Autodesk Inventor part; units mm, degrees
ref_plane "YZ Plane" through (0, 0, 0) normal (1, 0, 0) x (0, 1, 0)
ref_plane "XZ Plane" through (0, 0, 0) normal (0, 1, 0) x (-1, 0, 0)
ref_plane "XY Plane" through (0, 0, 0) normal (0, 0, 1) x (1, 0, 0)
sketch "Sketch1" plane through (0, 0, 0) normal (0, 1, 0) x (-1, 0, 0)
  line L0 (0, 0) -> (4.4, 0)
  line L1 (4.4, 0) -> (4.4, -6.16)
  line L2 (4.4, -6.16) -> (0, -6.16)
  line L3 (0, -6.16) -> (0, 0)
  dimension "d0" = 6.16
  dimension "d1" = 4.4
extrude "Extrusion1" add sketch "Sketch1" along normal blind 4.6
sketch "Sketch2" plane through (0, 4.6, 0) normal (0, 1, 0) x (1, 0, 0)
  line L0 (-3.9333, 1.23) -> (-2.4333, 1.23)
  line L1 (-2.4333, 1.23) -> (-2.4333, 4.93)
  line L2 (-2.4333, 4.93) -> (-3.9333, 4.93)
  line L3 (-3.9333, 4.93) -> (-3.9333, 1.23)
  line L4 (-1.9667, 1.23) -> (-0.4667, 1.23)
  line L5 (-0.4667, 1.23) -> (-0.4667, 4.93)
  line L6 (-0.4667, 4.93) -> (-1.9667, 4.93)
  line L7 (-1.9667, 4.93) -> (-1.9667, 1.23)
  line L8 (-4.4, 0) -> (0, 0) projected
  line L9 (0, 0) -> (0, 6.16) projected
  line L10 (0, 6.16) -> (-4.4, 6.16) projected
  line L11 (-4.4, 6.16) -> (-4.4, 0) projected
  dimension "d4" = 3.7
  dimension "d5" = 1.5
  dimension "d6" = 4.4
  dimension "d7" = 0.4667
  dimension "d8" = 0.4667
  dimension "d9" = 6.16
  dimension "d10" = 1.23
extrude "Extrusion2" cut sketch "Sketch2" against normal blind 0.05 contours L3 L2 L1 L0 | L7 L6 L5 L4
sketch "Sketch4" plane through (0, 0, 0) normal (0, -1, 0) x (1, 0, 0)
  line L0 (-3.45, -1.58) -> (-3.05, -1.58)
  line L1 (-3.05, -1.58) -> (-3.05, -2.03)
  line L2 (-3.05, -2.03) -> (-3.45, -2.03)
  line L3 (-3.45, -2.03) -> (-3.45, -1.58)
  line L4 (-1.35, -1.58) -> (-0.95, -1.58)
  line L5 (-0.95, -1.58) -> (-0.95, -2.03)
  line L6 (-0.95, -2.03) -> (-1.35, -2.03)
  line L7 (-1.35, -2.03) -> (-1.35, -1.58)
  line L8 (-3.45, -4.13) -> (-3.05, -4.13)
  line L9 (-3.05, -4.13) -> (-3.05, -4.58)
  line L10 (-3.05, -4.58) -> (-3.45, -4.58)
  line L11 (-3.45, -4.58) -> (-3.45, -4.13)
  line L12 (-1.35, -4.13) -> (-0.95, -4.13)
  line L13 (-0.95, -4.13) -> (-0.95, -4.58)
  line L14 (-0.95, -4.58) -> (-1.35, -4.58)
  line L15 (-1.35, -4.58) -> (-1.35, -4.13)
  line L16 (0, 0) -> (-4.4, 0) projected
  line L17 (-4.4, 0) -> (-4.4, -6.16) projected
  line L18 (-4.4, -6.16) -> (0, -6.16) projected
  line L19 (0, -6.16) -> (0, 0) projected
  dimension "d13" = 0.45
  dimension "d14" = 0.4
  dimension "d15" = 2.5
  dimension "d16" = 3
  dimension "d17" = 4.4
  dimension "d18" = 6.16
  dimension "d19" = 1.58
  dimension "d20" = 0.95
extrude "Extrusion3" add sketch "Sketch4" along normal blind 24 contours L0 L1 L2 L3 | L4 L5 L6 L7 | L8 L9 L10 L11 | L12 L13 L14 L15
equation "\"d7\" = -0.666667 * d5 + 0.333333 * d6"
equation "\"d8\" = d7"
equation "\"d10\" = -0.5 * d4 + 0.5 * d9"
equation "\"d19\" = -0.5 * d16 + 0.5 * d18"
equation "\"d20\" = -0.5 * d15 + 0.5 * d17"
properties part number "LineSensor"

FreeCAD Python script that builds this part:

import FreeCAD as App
import Part
import Sketcher

V = App.Vector
Q = App.Units.Quantity

doc = App.newDocument("Part")
params = doc.addObject("Spreadsheet::Sheet", "Params")
for row, (alias, value) in enumerate([
    ("sketch1_width", "4.4 mm"),
    ("sketch1_height", "6.16 mm"),
    ("pad1_length", "4.6 mm"),
    ("sketch2_width", "1.5 mm"),
    ("sketch2_height", "3.7 mm"),
    ("pocket1_length", "0.05 mm"),
    ("sketch3_width", "0.4 mm"),
    ("sketch3_height", "0.45 mm"),
    ("pad2_length", "24 mm"),
], start=1):
    params.set(f"A{row}", alias)
    params.set(f"B{row}", "=" + value)
    params.setAlias(f"B{row}", alias)

body = doc.addObject("PartDesign::Body", "Body")

# Sketch on XZ plane
sketch1 = body.newObject("Sketcher::SketchObject", "Sketch")
sketch1.AttachmentSupport = (doc.getObject("XZ_Plane"), [""])
sketch1.MapMode = "FlatFace"
sketch1.addGeometry(Part.LineSegment(V(-4.4, 0, 0), V(0, 0, 0)), False)
sketch1.addGeometry(Part.LineSegment(V(0, 0, 0), V(0, -6.16, 0)), False)
sketch1.addGeometry(Part.LineSegment(V(0, -6.16, 0), V(-4.4, -6.16, 0)), False)
sketch1.addGeometry(Part.LineSegment(V(-4.4, -6.16, 0), V(-4.4, 0, 0)), False)
sketch1.addConstraint(Sketcher.Constraint("Coincident", 0, 2, 1, 1))
sketch1.addConstraint(Sketcher.Constraint("Coincident", 1, 2, 2, 1))
sketch1.addConstraint(Sketcher.Constraint("Coincident", 2, 2, 3, 1))
sketch1.addConstraint(Sketcher.Constraint("Coincident", 3, 2, 0, 1))
sketch1.addConstraint(Sketcher.Constraint("Horizontal", 0))
sketch1.addConstraint(Sketcher.Constraint("Vertical", 1))
sketch1.addConstraint(Sketcher.Constraint("Horizontal", 2))
sketch1.addConstraint(Sketcher.Constraint("Vertical", 3))
sketch1.addConstraint(Sketcher.Constraint("Coincident", 0, 2, -1, 1))
sketch1.addConstraint(Sketcher.Constraint("DistanceX", 0, 1, 0, 2, Q("4.4 mm")))
sketch1.addConstraint(Sketcher.Constraint("DistanceY", 1, 2, 1, 1, Q("6.16 mm")))
sketch1.setExpression("Constraints[9]", "Params.sketch1_width")
sketch1.setExpression("Constraints[10]", "Params.sketch1_height")
pad1 = body.newObject("PartDesign::Pad", "Pad")
pad1.Profile = sketch1
pad1.setExpression("Length", "Params.pad1_length")
pad1.Reversed = True

# Sketch on XZ plane
sketch2 = body.newObject("Sketcher::SketchObject", "Sketch001")
sketch2.AttachmentSupport = (doc.getObject("XZ_Plane"), [""])
sketch2.MapMode = "FlatFace"
sketch2.AttachmentOffset = App.Placement(V(0, 0, -4.6), App.Rotation())
sketch2.addGeometry(Part.LineSegment(V(-3.9333, -4.93, 0), V(-3.9333, -1.23, 0)), False)
sketch2.addGeometry(Part.LineSegment(V(-3.9333, -1.23, 0), V(-2.4333, -1.23, 0)), False)
sketch2.addGeometry(Part.LineSegment(V(-2.4333, -1.23, 0), V(-2.4333, -4.93, 0)), False)
sketch2.addGeometry(Part.LineSegment(V(-2.4333, -4.93, 0), V(-3.9333, -4.93, 0)), False)
sketch2.addGeometry(Part.LineSegment(V(-1.9667, -4.93, 0), V(-1.9667, -1.23, 0)), False)
sketch2.addGeometry(Part.LineSegment(V(-1.9667, -1.23, 0), V(-0.4667, -1.23, 0)), False)
sketch2.addGeometry(Part.LineSegment(V(-0.4667, -1.23, 0), V(-0.4667, -4.93, 0)), False)
sketch2.addGeometry(Part.LineSegment(V(-0.4667, -4.93, 0), V(-1.9667, -4.93, 0)), False)
sketch2.addConstraint(Sketcher.Constraint("Coincident", 0, 2, 1, 1))
sketch2.addConstraint(Sketcher.Constraint("Coincident", 1, 2, 2, 1))
sketch2.addConstraint(Sketcher.Constraint("Coincident", 2, 2, 3, 1))
sketch2.addConstraint(Sketcher.Constraint("Coincident", 3, 2, 0, 1))
sketch2.addConstraint(Sketcher.Constraint("Coincident", 4, 2, 5, 1))
sketch2.addConstraint(Sketcher.Constraint("Coincident", 5, 2, 6, 1))
sketch2.addConstraint(Sketcher.Constraint("Coincident", 6, 2, 7, 1))
sketch2.addConstraint(Sketcher.Constraint("Coincident", 7, 2, 4, 1))
sketch2.addConstraint(Sketcher.Constraint("Vertical", 0))
sketch2.addConstraint(Sketcher.Constraint("Horizontal", 1))
sketch2.addConstraint(Sketcher.Constraint("Vertical", 2))
sketch2.addConstraint(Sketcher.Constraint("Horizontal", 3))
sketch2.addConstraint(Sketcher.Constraint("Vertical", 4))
sketch2.addConstraint(Sketcher.Constraint("Horizontal", 5))
sketch2.addConstraint(Sketcher.Constraint("Vertical", 6))
sketch2.addConstraint(Sketcher.Constraint("Horizontal", 7))
sketch2.addConstraint(Sketcher.Constraint("Horizontal", 1, 2, 4, 2))
sketch2.addConstraint(Sketcher.Constraint("Horizontal", 3, 2, 6, 2))
sketch2.addConstraint(Sketcher.Constraint("Equal", 3, 5))
sketch2.addConstraint(Sketcher.Constraint("DistanceX", 1, 1, 1, 2, Q("1.5 mm")))
sketch2.addConstraint(Sketcher.Constraint("DistanceY", 0, 1, 0, 2, Q("3.7 mm")))
sketch2.addConstraint(Sketcher.Constraint("DistanceY", 0, 2, -1, 1, Q("1.23 mm")))
sketch2.addConstraint(Sketcher.Constraint("DistanceX", 5, 2, -1, 1, Q("0.4667 mm")))
sketch2.addConstraint(Sketcher.Constraint("DistanceX", 1, 2, 4, 2, Q("0.4666 mm")))
sketch2.setExpression("Constraints[19]", "Params.sketch2_width")
sketch2.setExpression("Constraints[20]", "Params.sketch2_height")
pocket1 = body.newObject("PartDesign::Pocket", "Pocket")
pocket1.Profile = sketch2
pocket1.setExpression("Length", "Params.pocket1_length")
pocket1.Reversed = True

# Sketch on XZ plane
sketch3 = body.newObject("Sketcher::SketchObject", "Sketch002")
sketch3.AttachmentSupport = (doc.getObject("XZ_Plane"), [""])
sketch3.MapMode = "FlatFace"
sketch3.addGeometry(Part.LineSegment(V(-3.05, -1.58, 0), V(-3.45, -1.58, 0)), False)
sketch3.addGeometry(Part.LineSegment(V(-3.45, -1.58, 0), V(-3.45, -2.03, 0)), False)
sketch3.addGeometry(Part.LineSegment(V(-3.45, -2.03, 0), V(-3.05, -2.03, 0)), False)
sketch3.addGeometry(Part.LineSegment(V(-3.05, -2.03, 0), V(-3.05, -1.58, 0)), False)
sketch3.addGeometry(Part.LineSegment(V(-0.95, -1.58, 0), V(-1.35, -1.58, 0)), False)
sketch3.addGeometry(Part.LineSegment(V(-1.35, -1.58, 0), V(-1.35, -2.03, 0)), False)
sketch3.addGeometry(Part.LineSegment(V(-1.35, -2.03, 0), V(-0.95, -2.03, 0)), False)
sketch3.addGeometry(Part.LineSegment(V(-0.95, -2.03, 0), V(-0.95, -1.58, 0)), False)
sketch3.addGeometry(Part.LineSegment(V(-3.05, -4.13, 0), V(-3.45, -4.13, 0)), False)
sketch3.addGeometry(Part.LineSegment(V(-3.45, -4.13, 0), V(-3.45, -4.58, 0)), False)
sketch3.addGeometry(Part.LineSegment(V(-3.45, -4.58, 0), V(-3.05, -4.58, 0)), False)
sketch3.addGeometry(Part.LineSegment(V(-3.05, -4.58, 0), V(-3.05, -4.13, 0)), False)
sketch3.addGeometry(Part.LineSegment(V(-0.95, -4.13, 0), V(-1.35, -4.13, 0)), False)
sketch3.addGeometry(Part.LineSegment(V(-1.35, -4.13, 0), V(-1.35, -4.58, 0)), False)
sketch3.addGeometry(Part.LineSegment(V(-1.35, -4.58, 0), V(-0.95, -4.58, 0)), False)
sketch3.addGeometry(Part.LineSegment(V(-0.95, -4.58, 0), V(-0.95, -4.13, 0)), False)
sketch3.addConstraint(Sketcher.Constraint("Coincident", 0, 2, 1, 1))
sketch3.addConstraint(Sketcher.Constraint("Coincident", 1, 2, 2, 1))
sketch3.addConstraint(Sketcher.Constraint("Coincident", 2, 2, 3, 1))
sketch3.addConstraint(Sketcher.Constraint("Coincident", 3, 2, 0, 1))
sketch3.addConstraint(Sketcher.Constraint("Coincident", 4, 2, 5, 1))
sketch3.addConstraint(Sketcher.Constraint("Coincident", 5, 2, 6, 1))
sketch3.addConstraint(Sketcher.Constraint("Coincident", 6, 2, 7, 1))
sketch3.addConstraint(Sketcher.Constraint("Coincident", 7, 2, 4, 1))
sketch3.addConstraint(Sketcher.Constraint("Coincident", 8, 2, 9, 1))
sketch3.addConstraint(Sketcher.Constraint("Coincident", 9, 2, 10, 1))
sketch3.addConstraint(Sketcher.Constraint("Coincident", 10, 2, 11, 1))
sketch3.addConstraint(Sketcher.Constraint("Coincident", 11, 2, 8, 1))
sketch3.addConstraint(Sketcher.Constraint("Coincident", 12, 2, 13, 1))
sketch3.addConstraint(Sketcher.Constraint("Coincident", 13, 2, 14, 1))
sketch3.addConstraint(Sketcher.Constraint("Coincident", 14, 2, 15, 1))
sketch3.addConstraint(Sketcher.Constraint("Coincident", 15, 2, 12, 1))
sketch3.addConstraint(Sketcher.Constraint("Horizontal", 0))
sketch3.addConstraint(Sketcher.Constraint("Vertical", 1))
sketch3.addConstraint(Sketcher.Constraint("Horizontal", 2))
sketch3.addConstraint(Sketcher.Constraint("Vertical", 3))
sketch3.addConstraint(Sketcher.Constraint("Horizontal", 4))
sketch3.addConstraint(Sketcher.Constraint("Vertical", 5))
sketch3.addConstraint(Sketcher.Constraint("Horizontal", 6))
sketch3.addConstraint(Sketcher.Constraint("Vertical", 7))
sketch3.addConstraint(Sketcher.Constraint("Horizontal", 8))
sketch3.addConstraint(Sketcher.Constraint("Vertical", 9))
sketch3.addConstraint(Sketcher.Constraint("Horizontal", 10))
sketch3.addConstraint(Sketcher.Constraint("Vertical", 11))
sketch3.addConstraint(Sketcher.Constraint("Horizontal", 12))
sketch3.addConstraint(Sketcher.Constraint("Vertical", 13))
sketch3.addConstraint(Sketcher.Constraint("Horizontal", 14))
sketch3.addConstraint(Sketcher.Constraint("Vertical", 15))
sketch3.addConstraint(Sketcher.Constraint("Horizontal", 3, 2, 4, 2))
sketch3.addConstraint(Sketcher.Constraint("Horizontal", 2, 2, 5, 2))
sketch3.addConstraint(Sketcher.Constraint("Horizontal", 11, 2, 12, 2))
sketch3.addConstraint(Sketcher.Constraint("Horizontal", 10, 2, 13, 2))
sketch3.addConstraint(Sketcher.Constraint("Vertical", 1, 2, 8, 2))
sketch3.addConstraint(Sketcher.Constraint("Vertical", 3, 2, 10, 2))
sketch3.addConstraint(Sketcher.Constraint("Vertical", 5, 2, 12, 2))
sketch3.addConstraint(Sketcher.Constraint("Vertical", 7, 2, 14, 2))
sketch3.addConstraint(Sketcher.Constraint("Equal", 2, 4))
sketch3.addConstraint(Sketcher.Constraint("Equal", 7, 9))
sketch3.addConstraint(Sketcher.Constraint("DistanceX", 0, 2, 0, 1, Q("0.4 mm")))
sketch3.addConstraint(Sketcher.Constraint("DistanceY", 9, 2, 0, 2, Q("3 mm")))
sketch3.addConstraint(Sketcher.Constraint("DistanceY", 1, 2, 1, 1, Q("0.45 mm")))
sketch3.addConstraint(Sketcher.Constraint("DistanceX", 1, 2, 6, 2, Q("2.5 mm")))
sketch3.addConstraint(Sketcher.Constraint("DistanceY", 0, 2, -1, 1, Q("1.58 mm")))
sketch3.addConstraint(Sketcher.Constraint("DistanceX", 6, 2, -1, 1, Q("0.95 mm")))
sketch3.setExpression("Constraints[42]", "Params.sketch3_width")
sketch3.setExpression("Constraints[44]", "Params.sketch3_height")
pad2 = body.newObject("PartDesign::Pad", "Pad001")
pad2.Profile = sketch3
pad2.setExpression("Length", "Params.pad2_length")

doc.recompute()
